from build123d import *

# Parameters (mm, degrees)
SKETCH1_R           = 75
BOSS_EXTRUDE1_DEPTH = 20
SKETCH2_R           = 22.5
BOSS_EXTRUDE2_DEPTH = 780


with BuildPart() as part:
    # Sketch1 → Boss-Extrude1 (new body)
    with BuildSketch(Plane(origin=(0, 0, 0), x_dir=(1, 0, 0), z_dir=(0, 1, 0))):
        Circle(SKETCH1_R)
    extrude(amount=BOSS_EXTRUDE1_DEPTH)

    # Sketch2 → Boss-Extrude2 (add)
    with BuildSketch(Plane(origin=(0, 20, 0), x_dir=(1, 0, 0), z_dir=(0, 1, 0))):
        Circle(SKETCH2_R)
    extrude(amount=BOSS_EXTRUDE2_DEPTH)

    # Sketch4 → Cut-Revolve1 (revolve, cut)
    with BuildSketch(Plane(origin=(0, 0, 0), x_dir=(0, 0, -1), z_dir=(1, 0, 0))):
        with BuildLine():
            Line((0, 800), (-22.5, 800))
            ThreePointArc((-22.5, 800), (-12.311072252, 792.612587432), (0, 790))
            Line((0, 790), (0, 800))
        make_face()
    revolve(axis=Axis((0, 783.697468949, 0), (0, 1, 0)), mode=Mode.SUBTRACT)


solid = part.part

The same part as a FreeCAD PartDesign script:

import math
import FreeCAD as App
import Part
import Sketcher
from FreeCAD import Vector

doc = App.newDocument("Part")
body = doc.addObject("PartDesign::Body", "Body")

# Sketch on XZ plane
sketch1 = body.newObject("Sketcher::SketchObject", "Sketch")
sketch1.AttachmentSupport = (doc.getObject("XZ_Plane"), [""])
sketch1.MapMode = "FlatFace"
sketch1.addGeometry(Part.Circle(Vector(0, 0, 0), Vector(0, 0, 1), 75), False)
sketch1.addConstraint(Sketcher.Constraint("Coincident", 0, 3, -1, 1))
sketch1.addConstraint(Sketcher.Constraint("Diameter", 0, 150.0))
pad1 = body.newObject("PartDesign::Pad", "Pad")
pad1.Profile = sketch1
pad1.Length = 20
pad1.Reversed = True

# Sketch on XZ plane
sketch2 = body.newObject("Sketcher::SketchObject", "Sketch001")
sketch2.AttachmentSupport = (doc.getObject("XZ_Plane"), [""])
sketch2.MapMode = "FlatFace"
sketch2.AttachmentOffset = App.Placement(Vector(0, 0, -20), App.Rotation())
sketch2.addGeometry(Part.Circle(Vector(0, 0, 0), Vector(0, 0, 1), 22.5), False)
sketch2.addConstraint(Sketcher.Constraint("Coincident", 0, 3, -1, 1))
sketch2.addConstraint(Sketcher.Constraint("Diameter", 0, 45.0))
pad2 = body.newObject("PartDesign::Pad", "Pad001")
pad2.Profile = sketch2
pad2.Length = 780
pad2.Reversed = True

# Sketch on YZ plane
sketch3 = body.newObject("Sketcher::SketchObject", "Sketch002")
sketch3.AttachmentSupport = (doc.getObject("YZ_Plane"), [""])
sketch3.MapMode = "FlatFace"
sketch3.addGeometry(Part.LineSegment(Vector(800, 0, 0), Vector(800, 22.5, 0)), False)
sketch3.addGeometry(Part.ArcOfCircle(Part.Circle(Vector(820.3125, 0, 0), Vector(0, 0, 1), 30.3125), math.radians(132.075022), math.radians(180)), False)
sketch3.addGeometry(Part.LineSegment(Vector(790, 0, 0), Vector(800, 0, 0)), False)
sketch3.addConstraint(Sketcher.Constraint("Coincident", 0, 2, 1, 1))
sketch3.addConstraint(Sketcher.Constraint("Coincident", 1, 2, 2, 1))
sketch3.addConstraint(Sketcher.Constraint("Coincident", 2, 2, 0, 1))
sketch3.addConstraint(Sketcher.Constraint("Vertical", 0))
sketch3.addConstraint(Sketcher.Constraint("Horizontal", 2))
sketch3.addConstraint(Sketcher.Constraint("PointOnObject", 1, 3, -1))
sketch3.addConstraint(Sketcher.Constraint("PointOnObject", 1, 2, -1))
sketch3.addConstraint(Sketcher.Constraint("DistanceX", 2, 1, 2, 2, 10.0))
sketch3.addConstraint(Sketcher.Constraint("DistanceY", 0, 1, 0, 2, 22.5))
sketch3.addConstraint(Sketcher.Constraint("DistanceX", -1, 1, 0, 2, 800.0))
groove = body.newObject("PartDesign::Groove", "Groove")
groove.Profile = sketch3
groove.ReferenceAxis = (sketch3, ["H_Axis"])
groove.Angle = 360

doc.recompute()
